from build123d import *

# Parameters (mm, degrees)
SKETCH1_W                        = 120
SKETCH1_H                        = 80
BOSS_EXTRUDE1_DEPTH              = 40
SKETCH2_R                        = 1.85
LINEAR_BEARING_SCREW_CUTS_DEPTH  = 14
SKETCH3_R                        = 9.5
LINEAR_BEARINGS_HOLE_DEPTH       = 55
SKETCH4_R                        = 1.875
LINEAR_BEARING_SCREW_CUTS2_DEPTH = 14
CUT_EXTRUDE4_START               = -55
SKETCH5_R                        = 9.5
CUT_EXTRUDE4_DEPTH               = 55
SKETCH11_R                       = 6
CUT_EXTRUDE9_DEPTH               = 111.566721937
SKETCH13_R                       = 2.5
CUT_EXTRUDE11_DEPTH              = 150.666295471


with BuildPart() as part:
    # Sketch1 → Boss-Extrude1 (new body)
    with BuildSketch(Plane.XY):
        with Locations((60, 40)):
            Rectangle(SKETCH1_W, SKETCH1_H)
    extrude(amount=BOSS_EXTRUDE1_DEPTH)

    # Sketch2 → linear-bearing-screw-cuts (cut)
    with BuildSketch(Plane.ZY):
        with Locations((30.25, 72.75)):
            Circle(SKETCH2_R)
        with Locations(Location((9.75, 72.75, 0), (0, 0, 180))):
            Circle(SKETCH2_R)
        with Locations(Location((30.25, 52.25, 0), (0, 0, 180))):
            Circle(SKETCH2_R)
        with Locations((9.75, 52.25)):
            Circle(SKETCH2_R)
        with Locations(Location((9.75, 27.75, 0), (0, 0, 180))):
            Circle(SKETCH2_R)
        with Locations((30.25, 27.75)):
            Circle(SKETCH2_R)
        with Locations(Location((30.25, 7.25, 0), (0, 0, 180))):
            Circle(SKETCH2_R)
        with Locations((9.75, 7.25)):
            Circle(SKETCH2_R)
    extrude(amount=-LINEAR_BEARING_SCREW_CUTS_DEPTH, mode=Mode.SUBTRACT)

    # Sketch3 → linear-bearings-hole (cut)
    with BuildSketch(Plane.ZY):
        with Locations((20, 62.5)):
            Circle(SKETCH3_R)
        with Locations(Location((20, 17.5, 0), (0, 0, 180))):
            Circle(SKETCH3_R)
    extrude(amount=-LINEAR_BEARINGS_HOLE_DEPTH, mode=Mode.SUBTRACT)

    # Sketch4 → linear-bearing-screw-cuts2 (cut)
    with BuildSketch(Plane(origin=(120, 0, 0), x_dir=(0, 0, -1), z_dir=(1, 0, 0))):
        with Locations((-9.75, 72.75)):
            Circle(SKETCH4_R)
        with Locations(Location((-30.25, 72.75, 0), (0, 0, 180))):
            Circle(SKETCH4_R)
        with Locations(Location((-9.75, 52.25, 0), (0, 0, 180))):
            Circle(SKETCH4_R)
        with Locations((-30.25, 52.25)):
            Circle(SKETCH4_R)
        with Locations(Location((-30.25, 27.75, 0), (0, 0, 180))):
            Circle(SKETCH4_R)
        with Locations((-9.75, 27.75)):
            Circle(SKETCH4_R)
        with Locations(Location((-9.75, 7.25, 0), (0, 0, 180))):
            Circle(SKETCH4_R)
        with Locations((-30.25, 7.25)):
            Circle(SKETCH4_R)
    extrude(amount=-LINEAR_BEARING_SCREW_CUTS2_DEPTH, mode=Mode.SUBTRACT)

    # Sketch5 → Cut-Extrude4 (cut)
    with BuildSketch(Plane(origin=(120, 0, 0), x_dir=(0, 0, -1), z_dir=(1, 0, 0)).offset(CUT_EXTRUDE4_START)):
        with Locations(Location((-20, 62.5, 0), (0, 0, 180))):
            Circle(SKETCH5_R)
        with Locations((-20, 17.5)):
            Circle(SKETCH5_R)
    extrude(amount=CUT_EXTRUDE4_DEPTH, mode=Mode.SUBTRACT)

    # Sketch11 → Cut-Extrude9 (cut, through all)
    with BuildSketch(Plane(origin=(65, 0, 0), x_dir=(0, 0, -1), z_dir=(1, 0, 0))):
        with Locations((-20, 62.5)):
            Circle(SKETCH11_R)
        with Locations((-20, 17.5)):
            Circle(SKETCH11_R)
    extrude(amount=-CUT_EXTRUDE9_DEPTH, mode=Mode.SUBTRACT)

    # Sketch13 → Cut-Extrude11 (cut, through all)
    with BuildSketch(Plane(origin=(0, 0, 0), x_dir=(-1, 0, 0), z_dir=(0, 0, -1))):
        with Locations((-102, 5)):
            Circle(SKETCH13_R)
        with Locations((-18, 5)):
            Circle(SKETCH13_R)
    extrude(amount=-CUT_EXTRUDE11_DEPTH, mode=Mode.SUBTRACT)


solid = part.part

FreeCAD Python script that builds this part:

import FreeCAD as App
import Part
import Sketcher

V = App.Vector

doc = App.newDocument("Part")
body = doc.addObject("PartDesign::Body", "Body")

sketch1 = body.newObject("Sketcher::SketchObject", "Sketch")
sketch1.AttachmentSupport = (doc.getObject("XY_Plane"), [""])
sketch1.MapMode = "FlatFace"
sketch1.addGeometry([
    Part.LineSegment(V(0, 80, 0), V(0, 0, 0)),
    Part.LineSegment(V(0, 0, 0), V(120, 0, 0)),
    Part.LineSegment(V(120, 0, 0), V(120, 80, 0)),
    Part.LineSegment(V(120, 80, 0), V(0, 80, 0)),
], False)
sketch1.addConstraint([
    Sketcher.Constraint("Coincident", 0, 2, 1, 1),
    Sketcher.Constraint("Coincident", 1, 2, 2, 1),
    Sketcher.Constraint("Coincident", 2, 2, 3, 1),
    Sketcher.Constraint("Coincident", 3, 2, 0, 1),
    Sketcher.Constraint("Vertical", 0),
    Sketcher.Constraint("Horizontal", 1),
    Sketcher.Constraint("Vertical", 2),
    Sketcher.Constraint("Horizontal", 3),
    Sketcher.Constraint("Coincident", 0, 2, -1, 1),
    Sketcher.Constraint("DistanceX", 1, 1, 1, 2, 120.0),
    Sketcher.Constraint("DistanceY", 0, 2, 0, 1, 80.0),
])
pad1 = body.newObject("PartDesign::Pad", "Pad")
pad1.Profile = sketch1
pad1.Length = 40

sketch2 = body.newObject("Sketcher::SketchObject", "Sketch001")
sketch2.AttachmentSupport = (doc.getObject("YZ_Plane"), [""])
sketch2.MapMode = "FlatFace"
sketch2.addGeometry([
    Part.Circle(V(72.75, 30.25, 0), V(0, 0, 1), 1.85),
    Part.Circle(V(72.75, 9.75, 0), V(0, 0, 1), 1.85),
    Part.Circle(V(52.25, 30.25, 0), V(0, 0, 1), 1.85),
    Part.Circle(V(52.25, 9.75, 0), V(0, 0, 1), 1.85),
    Part.Circle(V(27.75, 9.75, 0), V(0, 0, 1), 1.85),
    Part.Circle(V(27.75, 30.25, 0), V(0, 0, 1), 1.85),
    Part.Circle(V(7.25, 30.25, 0), V(0, 0, 1), 1.85),
    Part.Circle(V(7.25, 9.75, 0), V(0, 0, 1), 1.85),
], False)
sketch2.addConstraint([
    Sketcher.Constraint("Equal", 0, 1),
    Sketcher.Constraint("Equal", 1, 2),
    Sketcher.Constraint("Equal", 2, 3),
    Sketcher.Constraint("Equal", 3, 4),
    Sketcher.Constraint("Equal", 4, 5),
    Sketcher.Constraint("Equal", 5, 6),
    Sketcher.Constraint("Equal", 6, 7),
    Sketcher.Constraint("Horizontal", 0, 3, 2, 3),
    Sketcher.Constraint("Horizontal", 1, 3, 3, 3),
    Sketcher.Constraint("Horizontal", 3, 3, 4, 3),
    Sketcher.Constraint("Horizontal", 2, 3, 5, 3),
    Sketcher.Constraint("Horizontal", 5, 3, 6, 3),
    Sketcher.Constraint("Horizontal", 4, 3, 7, 3),
    Sketcher.Constraint("Vertical", 0, 3, 1, 3),
    Sketcher.Constraint("Vertical", 2, 3, 3, 3),
    Sketcher.Constraint("Vertical", 4, 3, 5, 3),
    Sketcher.Constraint("Vertical", 6, 3, 7, 3),
    Sketcher.Constraint("Diameter", 0, 3.7),
    Sketcher.Constraint("DistanceX", 4, 3, 1, 3, 45.0),
    Sketcher.Constraint("DistanceX", 6, 3, 2, 3, 45.0),
    Sketcher.Constraint("DistanceY", 1, 3, 0, 3, 20.5),
    Sketcher.Constraint("DistanceX", 2, 3, 0, 3, 20.5),
    Sketcher.Constraint("DistanceX", -1, 1, 0, 3, 72.75),
    Sketcher.Constraint("DistanceY", -1, 1, 0, 3, 30.25),
])
pocket1 = body.newObject("PartDesign::Pocket", "Pocket")
pocket1.Profile = sketch2
pocket1.Length = 14
pocket1.Reversed = True

sketch3 = body.newObject("Sketcher::SketchObject", "Sketch002")
sketch3.AttachmentSupport = (doc.getObject("YZ_Plane"), [""])
sketch3.MapMode = "FlatFace"
sketch3.addGeometry([
    Part.Circle(V(62.5, 20, 0), V(0, 0, 1), 9.5),
    Part.Circle(V(17.5, 20, 0), V(0, 0, 1), 9.5),
], False)
sketch3.addConstraint([
    Sketcher.Constraint("Equal", 0, 1),
    Sketcher.Constraint("Horizontal", 0, 3, 1, 3),
    Sketcher.Constraint("Diameter", 0, 19.0),
    Sketcher.Constraint("DistanceY", -1, 1, 0, 3, 20.0),
    Sketcher.Constraint("DistanceX", 1, 3, 0, 3, 45.0),
    Sketcher.Constraint("DistanceX", -1, 1, 0, 3, 62.5),
])
pocket2 = body.newObject("PartDesign::Pocket", "Pocket001")
pocket2.Profile = sketch3
pocket2.Length = 55
pocket2.Reversed = True

sketch4 = body.newObject("Sketcher::SketchObject", "Sketch003")
sketch4.AttachmentSupport = (doc.getObject("YZ_Plane"), [""])
sketch4.MapMode = "FlatFace"
sketch4.AttachmentOffset = App.Placement(V(0, 0, 120), App.Rotation())
sketch4.addGeometry([
    Part.Circle(V(72.75, 9.75, 0), V(0, 0, 1), 1.875),
    Part.Circle(V(72.75, 30.25, 0), V(0, 0, 1), 1.875),
    Part.Circle(V(52.25, 9.75, 0), V(0, 0, 1), 1.875),
    Part.Circle(V(52.25, 30.25, 0), V(0, 0, 1), 1.875),
    Part.Circle(V(27.75, 30.25, 0), V(0, 0, 1), 1.875),
    Part.Circle(V(27.75, 9.75, 0), V(0, 0, 1), 1.875),
    Part.Circle(V(7.25, 9.75, 0), V(0, 0, 1), 1.875),
    Part.Circle(V(7.25, 30.25, 0), V(0, 0, 1), 1.875),
], False)
sketch4.addConstraint([
    Sketcher.Constraint("Equal", 0, 1),
    Sketcher.Constraint("Equal", 1, 2),
    Sketcher.Constraint("Equal", 2, 3),
    Sketcher.Constraint("Equal", 3, 4),
    Sketcher.Constraint("Equal", 4, 5),
    Sketcher.Constraint("Equal", 5, 6),
    Sketcher.Constraint("Equal", 6, 7),
    Sketcher.Constraint("Horizontal", 0, 3, 2, 3),
    Sketcher.Constraint("Horizontal", 1, 3, 3, 3),
    Sketcher.Constraint("Horizontal", 3, 3, 4, 3),
    Sketcher.Constraint("Horizontal", 2, 3, 5, 3),
    Sketcher.Constraint("Horizontal", 5, 3, 6, 3),
    Sketcher.Constraint("Horizontal", 4, 3, 7, 3),
    Sketcher.Constraint("Vertical", 0, 3, 1, 3),
    Sketcher.Constraint("Vertical", 2, 3, 3, 3),
    Sketcher.Constraint("Vertical", 4, 3, 5, 3),
    Sketcher.Constraint("Vertical", 6, 3, 7, 3),
    Sketcher.Constraint("Diameter", 0, 3.75),
    Sketcher.Constraint("DistanceX", 4, 3, 1, 3, 45.0),
    Sketcher.Constraint("DistanceX", 6, 3, 2, 3, 45.0),
    Sketcher.Constraint("DistanceY", 0, 3, 1, 3, 20.5),
    Sketcher.Constraint("DistanceX", 2, 3, 0, 3, 20.5),
    Sketcher.Constraint("DistanceX", -1, 1, 0, 3, 72.75),
    Sketcher.Constraint("DistanceY", -1, 1, 0, 3, 9.75),
])
pocket3 = body.newObject("PartDesign::Pocket", "Pocket002")
pocket3.Profile = sketch4
pocket3.Length = 14

sketch5 = body.newObject("Sketcher::SketchObject", "Sketch004")
sketch5.AttachmentSupport = (doc.getObject("YZ_Plane"), [""])
sketch5.MapMode = "FlatFace"
sketch5.AttachmentOffset = App.Placement(V(0, 0, 65), App.Rotation())
sketch5.addGeometry([
    Part.Circle(V(62.5, 20, 0), V(0, 0, 1), 9.5),
    Part.Circle(V(17.5, 20, 0), V(0, 0, 1), 9.5),
], False)
sketch5.addConstraint([
    Sketcher.Constraint("Equal", 0, 1),
    Sketcher.Constraint("Horizontal", 0, 3, 1, 3),
    Sketcher.Constraint("Diameter", 0, 19.0),
    Sketcher.Constraint("DistanceY", -1, 1, 0, 3, 20.0),
    Sketcher.Constraint("DistanceX", 1, 3, 0, 3, 45.0),
    Sketcher.Constraint("DistanceX", -1, 1, 0, 3, 62.5),
])
pocket4 = body.newObject("PartDesign::Pocket", "Pocket003")
pocket4.Profile = sketch5
pocket4.Length = 55
pocket4.Reversed = True

sketch6 = body.newObject("Sketcher::SketchObject", "Sketch005")
sketch6.AttachmentSupport = (doc.getObject("YZ_Plane"), [""])
sketch6.MapMode = "FlatFace"
sketch6.AttachmentOffset = App.Placement(V(0, 0, 65), App.Rotation())
sketch6.addGeometry([
    Part.Circle(V(62.5, 20, 0), V(0, 0, 1), 6),
    Part.Circle(V(17.5, 20, 0), V(0, 0, 1), 6),
], False)
sketch6.addConstraint([
    Sketcher.Constraint("Equal", 0, 1),
    Sketcher.Constraint("Horizontal", 0, 3, 1, 3),
    Sketcher.Constraint("Diameter", 0, 12.0),
    Sketcher.Constraint("DistanceY", -1, 1, 0, 3, 20.0),
    Sketcher.Constraint("DistanceX", 1, 3, 0, 3, 45.0),
    Sketcher.Constraint("DistanceX", -1, 1, 0, 3, 62.5),
])
pocket5 = body.newObject("PartDesign::Pocket", "Pocket004")
pocket5.Profile = sketch6
pocket5.Type = "ThroughAll"

sketch7 = body.newObject("Sketcher::SketchObject", "Sketch006")
sketch7.AttachmentSupport = (doc.getObject("XY_Plane"), [""])
sketch7.MapMode = "FlatFace"
sketch7.addGeometry([
    Part.Circle(V(102, 5, 0), V(0, 0, 1), 2.5),
    Part.Circle(V(18, 5, 0), V(0, 0, 1), 2.5),
], False)
sketch7.addConstraint([
    Sketcher.Constraint("Equal", 0, 1),
    Sketcher.Constraint("Horizontal", 0, 3, 1, 3),
    Sketcher.Constraint("Diameter", 0, 5.0),
    Sketcher.Constraint("DistanceX", -1, 1, 0, 3, 102.0),
    Sketcher.Constraint("DistanceY", -1, 1, 0, 3, 5.0),
    Sketcher.Constraint("DistanceX", -1, 1, 1, 3, 18.0),
])
pocket6 = body.newObject("PartDesign::Pocket", "Pocket005")
pocket6.Profile = sketch7
pocket6.Type = "ThroughAll"
pocket6.Reversed = True

doc.recompute()
